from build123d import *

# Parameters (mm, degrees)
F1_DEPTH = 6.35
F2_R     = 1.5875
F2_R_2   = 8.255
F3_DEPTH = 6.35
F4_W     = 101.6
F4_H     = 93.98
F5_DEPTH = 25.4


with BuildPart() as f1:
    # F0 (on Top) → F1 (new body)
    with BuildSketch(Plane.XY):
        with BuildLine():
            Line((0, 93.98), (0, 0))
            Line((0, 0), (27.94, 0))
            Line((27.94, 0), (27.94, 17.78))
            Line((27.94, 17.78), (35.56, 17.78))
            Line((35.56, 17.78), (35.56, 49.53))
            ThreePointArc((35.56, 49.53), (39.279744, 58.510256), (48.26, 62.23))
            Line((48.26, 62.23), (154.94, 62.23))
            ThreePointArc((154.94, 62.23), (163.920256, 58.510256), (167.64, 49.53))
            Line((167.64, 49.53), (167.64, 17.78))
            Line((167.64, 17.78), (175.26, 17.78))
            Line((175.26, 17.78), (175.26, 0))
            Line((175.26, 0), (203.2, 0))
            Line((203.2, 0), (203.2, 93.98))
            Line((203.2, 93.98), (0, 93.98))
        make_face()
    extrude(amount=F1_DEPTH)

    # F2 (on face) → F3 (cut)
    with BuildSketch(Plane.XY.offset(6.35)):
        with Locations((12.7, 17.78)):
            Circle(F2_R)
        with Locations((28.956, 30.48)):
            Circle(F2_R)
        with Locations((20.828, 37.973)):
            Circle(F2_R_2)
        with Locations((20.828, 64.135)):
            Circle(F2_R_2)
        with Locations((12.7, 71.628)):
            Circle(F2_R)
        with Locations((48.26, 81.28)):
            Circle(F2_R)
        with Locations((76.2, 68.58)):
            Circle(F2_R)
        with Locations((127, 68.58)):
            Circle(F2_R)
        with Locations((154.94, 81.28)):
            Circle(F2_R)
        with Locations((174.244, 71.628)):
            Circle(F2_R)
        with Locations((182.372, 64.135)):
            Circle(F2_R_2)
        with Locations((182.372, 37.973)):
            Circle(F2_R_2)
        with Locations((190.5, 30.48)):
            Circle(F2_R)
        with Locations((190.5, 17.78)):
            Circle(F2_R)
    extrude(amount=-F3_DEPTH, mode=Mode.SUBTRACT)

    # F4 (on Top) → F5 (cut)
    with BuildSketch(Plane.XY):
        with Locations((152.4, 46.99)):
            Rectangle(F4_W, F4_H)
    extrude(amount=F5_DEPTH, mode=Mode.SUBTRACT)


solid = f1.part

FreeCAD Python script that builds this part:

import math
import FreeCAD as App
import Part
import Sketcher
from FreeCAD import Vector
Q = App.Units.Quantity

doc = App.newDocument("Part")
params = doc.addObject("Spreadsheet::Sheet", "Params")
for row, (alias, value) in enumerate([
    ("sketch1_radius", "0.5 in"),
    ("sketch1_width", "8 in"),
    ("sketch1_width2", "1.1 in"),
    ("sketch1_width3", "0.3 in"),
    ("sketch1_height", "3.7 in"),
    ("pad1_length", "0.25 in"),
    ("sketch2_diameter", "0.65 in"),
    ("sketch2_diameter2", "0.125 in"),
    ("pocket1_length", "0.25 in"),
    ("sketch3_width", "4 in"),
    ("sketch3_height", "3.7 in"),
    ("pocket2_length", "1 in"),
], start=1):
    params.set(f"A{row}", alias)
    params.set(f"B{row}", "=" + value)
    params.setAlias(f"B{row}", alias)

body = doc.addObject("PartDesign::Body", "Body")

sketch1 = body.newObject("Sketcher::SketchObject", "Sketch")
sketch1.AttachmentSupport = (doc.getObject("XY_Plane"), [""])
sketch1.MapMode = "FlatFace"
sketch1.addGeometry([
    Part.LineSegment(Vector(0, 93.98, 0), Vector(0, 0, 0)),
    Part.LineSegment(Vector(0, 0, 0), Vector(27.94, 0, 0)),
    Part.LineSegment(Vector(27.94, 0, 0), Vector(27.94, 17.78, 0)),
    Part.LineSegment(Vector(27.94, 17.78, 0), Vector(35.56, 17.78, 0)),
    Part.LineSegment(Vector(35.56, 17.78, 0), Vector(35.56, 49.53, 0)),
    Part.ArcOfCircle(Part.Circle(Vector(48.26, 49.53, 0), Vector(0, 0, 1), 12.7), math.radians(90.000002), math.radians(179.999998)),
    Part.LineSegment(Vector(48.26, 62.23, 0), Vector(154.94, 62.23, 0)),
    Part.ArcOfCircle(Part.Circle(Vector(154.94, 49.53, 0), Vector(0, 0, 1), 12.7), math.radians(0.000002), math.radians(89.999998)),
    Part.LineSegment(Vector(167.64, 49.53, 0), Vector(167.64, 17.78, 0)),
    Part.LineSegment(Vector(167.64, 17.78, 0), Vector(175.26, 17.78, 0)),
    Part.LineSegment(Vector(175.26, 17.78, 0), Vector(175.26, 0, 0)),
    Part.LineSegment(Vector(175.26, 0, 0), Vector(203.2, 0, 0)),
    Part.LineSegment(Vector(203.2, 0, 0), Vector(203.2, 93.98, 0)),
    Part.LineSegment(Vector(203.2, 93.98, 0), Vector(0, 93.98, 0)),
], False)
sketch1.addConstraint([
    Sketcher.Constraint("Coincident", 0, 2, 1, 1),
    Sketcher.Constraint("Coincident", 1, 2, 2, 1),
    Sketcher.Constraint("Coincident", 2, 2, 3, 1),
    Sketcher.Constraint("Coincident", 3, 2, 4, 1),
    Sketcher.Constraint("Tangent", 4, 2, 5, 2),
    Sketcher.Constraint("Tangent", 5, 1, 6, 1),
    Sketcher.Constraint("Tangent", 6, 2, 7, 2),
    Sketcher.Constraint("Tangent", 7, 1, 8, 1),
    Sketcher.Constraint("Coincident", 8, 2, 9, 1),
    Sketcher.Constraint("Coincident", 9, 2, 10, 1),
    Sketcher.Constraint("Coincident", 10, 2, 11, 1),
    Sketcher.Constraint("Coincident", 11, 2, 12, 1),
    Sketcher.Constraint("Coincident", 12, 2, 13, 1),
    Sketcher.Constraint("Coincident", 13, 2, 0, 1),
    Sketcher.Constraint("Vertical", 0),
    Sketcher.Constraint("Horizontal", 1),
    Sketcher.Constraint("Vertical", 2),
    Sketcher.Constraint("Horizontal", 3),
    Sketcher.Constraint("Vertical", 4),
    Sketcher.Constraint("Horizontal", 6),
    Sketcher.Constraint("Vertical", 8),
    Sketcher.Constraint("Horizontal", 9),
    Sketcher.Constraint("Vertical", 10),
    Sketcher.Constraint("Horizontal", 11),
    Sketcher.Constraint("Vertical", 12),
    Sketcher.Constraint("Horizontal", 13),
    Sketcher.Constraint("Coincident", 0, 2, -1, 1),
    Sketcher.Constraint("Equal", 5, 7),
    Sketcher.Constraint("PointOnObject", 10, 2, -1),
    Sketcher.Constraint("Horizontal", 3, 2, 8, 2),
    Sketcher.Constraint("Equal", 3, 9),
    Sketcher.Constraint("Equal", 1, 11),
    Sketcher.Constraint("Radius", 5, Q("0.5 in")),
    Sketcher.Constraint("DistanceX", 13, 2, 13, 1, Q("8 in")),
    Sketcher.Constraint("DistanceX", 1, 1, 1, 2, Q("1.1 in")),
    Sketcher.Constraint("DistanceX", 3, 1, 3, 2, Q("0.3 in")),
    Sketcher.Constraint("DistanceY", 0, 2, 0, 1, Q("3.7 in")),
    Sketcher.Constraint("DistanceY", 2, 1, 2, 2, Q("0.7 in")),
    Sketcher.Constraint("DistanceY", 4, 1, 4, 2, Q("1.25 in")),
])
sketch1.setExpression("Constraints[32]", "Params.sketch1_radius")
sketch1.setExpression("Constraints[33]", "Params.sketch1_width")
sketch1.setExpression("Constraints[34]", "Params.sketch1_width2")
sketch1.setExpression("Constraints[35]", "Params.sketch1_width3")
sketch1.setExpression("Constraints[36]", "Params.sketch1_height")
pad1 = body.newObject("PartDesign::Pad", "Pad")
pad1.Profile = sketch1
pad1.setExpression("Length", "Params.pad1_length")

sketch2 = body.newObject("Sketcher::SketchObject", "Sketch001")
sketch2.AttachmentSupport = (doc.getObject("XY_Plane"), [""])
sketch2.MapMode = "FlatFace"
sketch2.AttachmentOffset = App.Placement(Vector(0, 0, 0.25 * 25.4), App.Rotation())
sketch2.addGeometry([
    Part.Circle(Vector(12.7, 17.78, 0), Vector(0, 0, 1), 1.5875),
    Part.Circle(Vector(28.956, 30.48, 0), Vector(0, 0, 1), 1.5875),
    Part.Circle(Vector(20.828, 37.973, 0), Vector(0, 0, 1), 8.255),
    Part.Circle(Vector(20.828, 64.135, 0), Vector(0, 0, 1), 8.255),
    Part.Circle(Vector(12.7, 71.628, 0), Vector(0, 0, 1), 1.5875),
    Part.Circle(Vector(48.26, 81.28, 0), Vector(0, 0, 1), 1.5875),
    Part.Circle(Vector(76.2, 68.58, 0), Vector(0, 0, 1), 1.5875),
    Part.Circle(Vector(127, 68.58, 0), Vector(0, 0, 1), 1.5875),
    Part.Circle(Vector(154.94, 81.28, 0), Vector(0, 0, 1), 1.5875),
    Part.Circle(Vector(174.244, 71.628, 0), Vector(0, 0, 1), 1.5875),
    Part.Circle(Vector(182.372, 64.135, 0), Vector(0, 0, 1), 8.255),
    Part.Circle(Vector(182.372, 37.973, 0), Vector(0, 0, 1), 8.255),
    Part.Circle(Vector(190.5, 30.48, 0), Vector(0, 0, 1), 1.5875),
    Part.Circle(Vector(190.5, 17.78, 0), Vector(0, 0, 1), 1.5875),
], False)
sketch2.addConstraint([
    Sketcher.Constraint("Equal", 0, 1),
    Sketcher.Constraint("Equal", 2, 3),
    Sketcher.Constraint("Equal", 1, 4),
    Sketcher.Constraint("Equal", 4, 5),
    Sketcher.Constraint("Equal", 5, 6),
    Sketcher.Constraint("Equal", 6, 7),
    Sketcher.Constraint("Equal", 7, 8),
    Sketcher.Constraint("Equal", 8, 9),
    Sketcher.Constraint("Equal", 3, 10),
    Sketcher.Constraint("Equal", 10, 11),
    Sketcher.Constraint("Equal", 9, 12),
    Sketcher.Constraint("Equal", 12, 13),
    Sketcher.Constraint("Horizontal", 6, 3, 7, 3),
    Sketcher.Constraint("Horizontal", 5, 3, 8, 3),
    Sketcher.Constraint("Horizontal", 4, 3, 9, 3),
    Sketcher.Constraint("Horizontal", 3, 3, 10, 3),
    Sketcher.Constraint("Horizontal", 2, 3, 11, 3),
    Sketcher.Constraint("Horizontal", 1, 3, 12, 3),
    Sketcher.Constraint("Horizontal", 0, 3, 13, 3),
    Sketcher.Constraint("Vertical", 2, 3, 3, 3),
    Sketcher.Constraint("Vertical", 0, 3, 4, 3),
    Sketcher.Constraint("Vertical", 10, 3, 11, 3),
    Sketcher.Constraint("Vertical", 12, 3, 13, 3),
    Sketcher.Constraint("Diameter", 2, Q("0.65 in")),
    Sketcher.Constraint("Diameter", 0, Q("0.125 in")),
    Sketcher.Constraint("DistanceX", -1, 1, 6, 3, Q("3 in")),
    Sketcher.Constraint("DistanceX", -1, 1, 7, 3, Q("5 in")),
    Sketcher.Constraint("DistanceY", 1, 3, 5, 3, Q("2 in")),
    Sketcher.Constraint("DistanceX", -1, 1, 0, 3, Q("0.5 in")),
    Sketcher.Constraint("DistanceY", -1, 1, 0, 3, Q("0.7 in")),
    Sketcher.Constraint("DistanceY", -1, 1, 1, 3, Q("1.2 in")),
    Sketcher.Constraint("DistanceX", -1, 1, 5, 3, Q("1.9 in")),
    Sketcher.Constraint("DistanceY", -1, 1, 6, 3, Q("2.7 in")),
    Sketcher.Constraint("DistanceX", -1, 1, 8, 3, Q("6.1 in")),
    Sketcher.Constraint("DistanceX", -1, 1, 12, 3, Q("7.5 in")),
    Sketcher.Constraint("DistanceX", -1, 1, 1, 3, Q("1.14 in")),
    Sketcher.Constraint("DistanceX", -1, 1, 2, 3, Q("0.82 in")),
    Sketcher.Constraint("DistanceY", -1, 1, 4, 3, Q("2.82 in")),
    Sketcher.Constraint("DistanceX", -1, 1, 9, 3, Q("6.86 in")),
    Sketcher.Constraint("DistanceX", -1, 1, 10, 3, Q("7.18 in")),
    Sketcher.Constraint("DistanceY", 2, 3, 3, 3, Q("1.03 in")),
    Sketcher.Constraint("DistanceY", -1, 1, 2, 3, Q("1.495 in")),
])
sketch2.setExpression("Constraints[23]", "Params.sketch2_diameter")
sketch2.setExpression("Constraints[24]", "Params.sketch2_diameter2")
pocket1 = body.newObject("PartDesign::Pocket", "Pocket")
pocket1.Profile = sketch2
pocket1.setExpression("Length", "Params.pocket1_length")

sketch3 = body.newObject("Sketcher::SketchObject", "Sketch002")
sketch3.AttachmentSupport = (doc.getObject("XY_Plane"), [""])
sketch3.MapMode = "FlatFace"
sketch3.addGeometry([
    Part.LineSegment(Vector(101.6, 93.98, 0), Vector(101.6, 0, 0)),
    Part.LineSegment(Vector(101.6, 0, 0), Vector(203.2, 0, 0)),
    Part.LineSegment(Vector(203.2, 0, 0), Vector(203.2, 93.98, 0)),
    Part.LineSegment(Vector(203.2, 93.98, 0), Vector(101.6, 93.98, 0)),
], False)
sketch3.addConstraint([
    Sketcher.Constraint("Coincident", 0, 2, 1, 1),
    Sketcher.Constraint("Coincident", 1, 2, 2, 1),
    Sketcher.Constraint("Coincident", 2, 2, 3, 1),
    Sketcher.Constraint("Coincident", 3, 2, 0, 1),
    Sketcher.Constraint("Vertical", 0),
    Sketcher.Constraint("Horizontal", 1),
    Sketcher.Constraint("Vertical", 2),
    Sketcher.Constraint("Horizontal", 3),
    Sketcher.Constraint("PointOnObject", 0, 2, -1),
    Sketcher.Constraint("DistanceX", 1, 1, 1, 2, Q("4 in")),
    Sketcher.Constraint("DistanceY", 0, 2, 0, 1, Q("3.7 in")),
    Sketcher.Constraint("DistanceX", -1, 1, 0, 2, Q("4 in")),
])
sketch3.setExpression("Constraints[9]", "Params.sketch3_width")
sketch3.setExpression("Constraints[10]", "Params.sketch3_height")
pocket2 = body.newObject("PartDesign::Pocket", "Pocket001")
pocket2.Profile = sketch3
pocket2.setExpression("Length", "Params.pocket2_length")
pocket2.Reversed = True

doc.recompute()
